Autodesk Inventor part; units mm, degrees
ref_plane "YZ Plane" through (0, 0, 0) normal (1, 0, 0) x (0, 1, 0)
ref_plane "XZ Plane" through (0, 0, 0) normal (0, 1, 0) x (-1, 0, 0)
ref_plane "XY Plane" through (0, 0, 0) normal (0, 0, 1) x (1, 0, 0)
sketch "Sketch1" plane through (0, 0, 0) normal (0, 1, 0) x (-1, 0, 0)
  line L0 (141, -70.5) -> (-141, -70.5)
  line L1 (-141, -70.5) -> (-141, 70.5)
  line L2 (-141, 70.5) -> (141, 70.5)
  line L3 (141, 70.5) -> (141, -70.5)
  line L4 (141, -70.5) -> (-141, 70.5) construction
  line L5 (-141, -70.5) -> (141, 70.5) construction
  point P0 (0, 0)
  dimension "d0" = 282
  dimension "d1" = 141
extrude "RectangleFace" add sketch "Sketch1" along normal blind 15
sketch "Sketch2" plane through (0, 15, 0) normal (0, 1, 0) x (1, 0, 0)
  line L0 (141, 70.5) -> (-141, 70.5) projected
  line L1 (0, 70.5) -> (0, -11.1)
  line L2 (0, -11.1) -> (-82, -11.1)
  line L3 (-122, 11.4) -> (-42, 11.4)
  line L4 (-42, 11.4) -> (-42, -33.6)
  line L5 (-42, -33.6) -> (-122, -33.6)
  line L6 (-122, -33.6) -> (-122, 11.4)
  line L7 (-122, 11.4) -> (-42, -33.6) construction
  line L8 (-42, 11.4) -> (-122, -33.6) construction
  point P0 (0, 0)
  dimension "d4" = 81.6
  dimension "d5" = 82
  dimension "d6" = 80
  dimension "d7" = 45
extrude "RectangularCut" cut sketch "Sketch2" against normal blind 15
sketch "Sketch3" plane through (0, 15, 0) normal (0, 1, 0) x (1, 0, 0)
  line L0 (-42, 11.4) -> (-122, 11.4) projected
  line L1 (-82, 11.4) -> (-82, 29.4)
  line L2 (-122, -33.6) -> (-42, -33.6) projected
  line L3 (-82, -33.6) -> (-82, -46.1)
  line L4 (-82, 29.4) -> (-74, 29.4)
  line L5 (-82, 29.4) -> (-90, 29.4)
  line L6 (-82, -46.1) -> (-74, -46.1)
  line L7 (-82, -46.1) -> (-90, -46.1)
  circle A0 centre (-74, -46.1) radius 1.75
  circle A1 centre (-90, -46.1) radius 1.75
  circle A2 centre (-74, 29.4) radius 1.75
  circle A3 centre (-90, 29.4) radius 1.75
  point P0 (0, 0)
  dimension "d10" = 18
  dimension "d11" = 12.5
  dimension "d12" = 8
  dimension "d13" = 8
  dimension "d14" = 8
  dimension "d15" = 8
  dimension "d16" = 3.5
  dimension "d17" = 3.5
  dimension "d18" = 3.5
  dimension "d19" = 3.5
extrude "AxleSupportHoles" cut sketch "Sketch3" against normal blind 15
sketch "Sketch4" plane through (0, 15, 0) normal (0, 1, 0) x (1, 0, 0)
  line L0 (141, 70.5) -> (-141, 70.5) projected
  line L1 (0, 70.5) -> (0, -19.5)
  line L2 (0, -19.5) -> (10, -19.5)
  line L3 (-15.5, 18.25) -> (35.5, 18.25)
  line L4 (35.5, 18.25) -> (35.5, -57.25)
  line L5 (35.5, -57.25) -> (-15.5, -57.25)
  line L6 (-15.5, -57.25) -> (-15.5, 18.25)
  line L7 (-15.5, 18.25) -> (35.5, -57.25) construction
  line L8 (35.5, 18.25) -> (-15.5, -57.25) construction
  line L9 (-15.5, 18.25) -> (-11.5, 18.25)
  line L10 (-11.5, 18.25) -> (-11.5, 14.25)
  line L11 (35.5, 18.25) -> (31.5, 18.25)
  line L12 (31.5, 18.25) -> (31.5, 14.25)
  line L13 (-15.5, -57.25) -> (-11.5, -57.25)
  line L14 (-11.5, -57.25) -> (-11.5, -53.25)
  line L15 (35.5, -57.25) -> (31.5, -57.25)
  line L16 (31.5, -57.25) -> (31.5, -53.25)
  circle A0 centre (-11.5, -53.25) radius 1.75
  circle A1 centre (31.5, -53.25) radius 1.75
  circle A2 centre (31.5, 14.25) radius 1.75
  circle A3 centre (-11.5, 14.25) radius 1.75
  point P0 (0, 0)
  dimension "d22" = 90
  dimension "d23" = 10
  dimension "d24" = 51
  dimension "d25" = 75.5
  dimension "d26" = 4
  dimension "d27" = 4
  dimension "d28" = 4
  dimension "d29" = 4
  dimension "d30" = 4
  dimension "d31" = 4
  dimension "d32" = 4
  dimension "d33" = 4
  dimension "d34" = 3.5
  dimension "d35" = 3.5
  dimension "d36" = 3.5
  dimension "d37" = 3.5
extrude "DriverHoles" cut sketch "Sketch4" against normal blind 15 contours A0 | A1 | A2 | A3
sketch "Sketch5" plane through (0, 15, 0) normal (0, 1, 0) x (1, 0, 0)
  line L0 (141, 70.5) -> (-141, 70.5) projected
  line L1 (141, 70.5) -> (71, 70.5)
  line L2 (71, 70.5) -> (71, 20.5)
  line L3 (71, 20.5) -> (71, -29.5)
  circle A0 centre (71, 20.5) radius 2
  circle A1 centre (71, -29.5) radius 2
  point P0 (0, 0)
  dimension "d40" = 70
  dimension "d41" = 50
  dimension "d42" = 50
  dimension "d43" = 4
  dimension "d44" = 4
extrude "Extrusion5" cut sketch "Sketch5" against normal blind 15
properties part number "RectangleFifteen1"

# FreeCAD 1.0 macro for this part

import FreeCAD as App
import Part
import Sketcher

V = App.Vector
Q = App.Units.Quantity

doc = App.newDocument("Part")
body = doc.addObject("PartDesign::Body", "Body")

# Sketch on XZ plane
sketch1 = doc.addObject("Sketcher::SketchObject", "Sketch")
body.addObject(sketch1)
sketch1.AttachmentSupport = (doc.XZ_Plane, [""])
sketch1.MapMode = "FlatFace"
sketch1.addGeometry([
    Part.LineSegment(V(141, -70.5, 0), V(-141, -70.5, 0)),
    Part.LineSegment(V(-141, -70.5, 0), V(-141, 70.5, 0)),
    Part.LineSegment(V(-141, 70.5, 0), V(141, 70.5, 0)),
    Part.LineSegment(V(141, 70.5, 0), V(141, -70.5, 0)),
], False)
sketch1.addConstraint([
    Sketcher.Constraint("Coincident", 0, 2, 1, 1),
    Sketcher.Constraint("Coincident", 1, 2, 2, 1),
    Sketcher.Constraint("Coincident", 2, 2, 3, 1),
    Sketcher.Constraint("Coincident", 3, 2, 0, 1),
    Sketcher.Constraint("Horizontal", 0),
    Sketcher.Constraint("Vertical", 1),
    Sketcher.Constraint("Horizontal", 2),
    Sketcher.Constraint("Vertical", 3),
    Sketcher.Constraint("Symmetric", 0, 2, 2, 2, -1, 1),
    Sketcher.Constraint("DistanceX", 0, 2, 0, 1, Q("282 mm")),
    Sketcher.Constraint("DistanceY", 1, 1, 1, 2, Q("141 mm")),
])
pad1 = doc.addObject("PartDesign::Pad", "Pad")
body.addObject(pad1)
pad1.Profile = sketch1
pad1.Length = 15
pad1.Reversed = True

# Sketch on XZ plane
sketch2 = doc.addObject("Sketcher::SketchObject", "Sketch001")
body.addObject(sketch2)
sketch2.AttachmentSupport = (doc.XZ_Plane, [""])
sketch2.MapMode = "FlatFace"
sketch2.AttachmentOffset = App.Placement(V(0, 0, -15), App.Rotation())
sketch2.addGeometry([
    Part.LineSegment(V(-42, -11.4, 0), V(-122, -11.4, 0)),
    Part.LineSegment(V(-122, -11.4, 0), V(-122, 33.6, 0)),
    Part.LineSegment(V(-122, 33.6, 0), V(-42, 33.6, 0)),
    Part.LineSegment(V(-42, 33.6, 0), V(-42, -11.4, 0)),
], False)
sketch2.addConstraint([
    Sketcher.Constraint("Coincident", 0, 2, 1, 1),
    Sketcher.Constraint("Coincident", 1, 2, 2, 1),
    Sketcher.Constraint("Coincident", 2, 2, 3, 1),
    Sketcher.Constraint("Coincident", 3, 2, 0, 1),
    Sketcher.Constraint("Horizontal", 0),
    Sketcher.Constraint("Vertical", 1),
    Sketcher.Constraint("Horizontal", 2),
    Sketcher.Constraint("Vertical", 3),
    Sketcher.Constraint("DistanceX", 0, 2, 0, 1, Q("80 mm")),
    Sketcher.Constraint("DistanceY", 1, 1, 1, 2, Q("45 mm")),
    Sketcher.Constraint("DistanceX", 0, 2, -1, 1, Q("122 mm")),
    Sketcher.Constraint("DistanceY", 0, 2, -1, 1, Q("11.4 mm")),
])
pocket1 = doc.addObject("PartDesign::Pocket", "Pocket")
body.addObject(pocket1)
pocket1.Profile = sketch2
pocket1.Length = 15
pocket1.Reversed = True

# Sketch on XZ plane
sketch3 = doc.addObject("Sketcher::SketchObject", "Sketch002")
body.addObject(sketch3)
sketch3.AttachmentSupport = (doc.XZ_Plane, [""])
sketch3.MapMode = "FlatFace"
sketch3.AttachmentOffset = App.Placement(V(0, 0, -15), App.Rotation())
sketch3.addGeometry([
    Part.Circle(V(-74, -29.4, 0), V(0, 0, 1), 1.75),
    Part.Circle(V(-90, -29.4, 0), V(0, 0, 1), 1.75),
    Part.Circle(V(-74, 46.1, 0), V(0, 0, 1), 1.75),
    Part.Circle(V(-90, 46.1, 0), V(0, 0, 1), 1.75),
], False)
sketch3.addConstraint([
    Sketcher.Constraint("Equal", 0, 1),
    Sketcher.Constraint("Equal", 1, 2),
    Sketcher.Constraint("Equal", 2, 3),
    Sketcher.Constraint("Horizontal", 0, 3, 1, 3),
    Sketcher.Constraint("Horizontal", 2, 3, 3, 3),
    Sketcher.Constraint("Vertical", 0, 3, 2, 3),
    Sketcher.Constraint("Vertical", 1, 3, 3, 3),
    Sketcher.Constraint("Diameter", 0, Q("3.5 mm")),
    Sketcher.Constraint("DistanceX", 0, 3, -1, 1, Q("74 mm")),
    Sketcher.Constraint("DistanceX", 1, 3, -1, 1, Q("90 mm")),
    Sketcher.Constraint("DistanceY", 0, 3, -1, 1, Q("29.4 mm")),
    Sketcher.Constraint("DistanceY", -1, 1, 2, 3, Q("46.1 mm")),
])
pocket2 = doc.addObject("PartDesign::Pocket", "Pocket001")
body.addObject(pocket2)
pocket2.Profile = sketch3
pocket2.Length = 15
pocket2.Reversed = True

# Sketch on XZ plane
sketch4 = doc.addObject("Sketcher::SketchObject", "Sketch003")
body.addObject(sketch4)
sketch4.AttachmentSupport = (doc.XZ_Plane, [""])
sketch4.MapMode = "FlatFace"
sketch4.AttachmentOffset = App.Placement(V(0, 0, -15), App.Rotation())
sketch4.addGeometry([
    Part.Circle(V(-11.5, 53.25, 0), V(0, 0, 1), 1.75),
    Part.Circle(V(31.5, 53.25, 0), V(0, 0, 1), 1.75),
    Part.Circle(V(31.5, -14.25, 0), V(0, 0, 1), 1.75),
    Part.Circle(V(-11.5, -14.25, 0), V(0, 0, 1), 1.75),
], False)
sketch4.addConstraint([
    Sketcher.Constraint("Equal", 0, 1),
    Sketcher.Constraint("Equal", 1, 2),
    Sketcher.Constraint("Equal", 2, 3),
    Sketcher.Constraint("Horizontal", 0, 3, 1, 3),
    Sketcher.Constraint("Horizontal", 2, 3, 3, 3),
    Sketcher.Constraint("Vertical", 1, 3, 2, 3),
    Sketcher.Constraint("Vertical", 0, 3, 3, 3),
    Sketcher.Constraint("Diameter", 0, Q("3.5 mm")),
    Sketcher.Constraint("DistanceX", 0, 3, 1, 3, Q("43 mm")),
    Sketcher.Constraint("DistanceX", 0, 3, -1, 1, Q("11.5 mm")),
    Sketcher.Constraint("DistanceY", 2, 3, 1, 3, Q("67.5 mm")),
    Sketcher.Constraint("DistanceY", -1, 1, 0, 3, Q("53.25 mm")),
])
pocket3 = doc.addObject("PartDesign::Pocket", "Pocket002")
body.addObject(pocket3)
pocket3.Profile = sketch4
pocket3.Length = 15
pocket3.Reversed = True

# Sketch on XZ plane
sketch5 = doc.addObject("Sketcher::SketchObject", "Sketch004")
body.addObject(sketch5)
sketch5.AttachmentSupport = (doc.XZ_Plane, [""])
sketch5.MapMode = "FlatFace"
sketch5.AttachmentOffset = App.Placement(V(0, 0, -15), App.Rotation())
sketch5.addGeometry([
    Part.Circle(V(71, -20.5, 0), V(0, 0, 1), 2),
    Part.Circle(V(71, 29.5, 0), V(0, 0, 1), 2),
], False)
sketch5.addConstraint([
    Sketcher.Constraint("Equal", 0, 1),
    Sketcher.Constraint("Vertical", 0, 3, 1, 3),
    Sketcher.Constraint("Diameter", 0, Q("4 mm")),
    Sketcher.Constraint("DistanceY", 0, 3, 1, 3, Q("50 mm")),
    Sketcher.Constraint("DistanceX", -1, 1, 0, 3, Q("71 mm")),
    Sketcher.Constraint("DistanceY", 0, 3, -1, 1, Q("20.5 mm")),
])
pocket4 = doc.addObject("PartDesign::Pocket", "Pocket003")
body.addObject(pocket4)
pocket4.Profile = sketch5
pocket4.Length = 15
pocket4.Reversed = True

doc.recompute()
